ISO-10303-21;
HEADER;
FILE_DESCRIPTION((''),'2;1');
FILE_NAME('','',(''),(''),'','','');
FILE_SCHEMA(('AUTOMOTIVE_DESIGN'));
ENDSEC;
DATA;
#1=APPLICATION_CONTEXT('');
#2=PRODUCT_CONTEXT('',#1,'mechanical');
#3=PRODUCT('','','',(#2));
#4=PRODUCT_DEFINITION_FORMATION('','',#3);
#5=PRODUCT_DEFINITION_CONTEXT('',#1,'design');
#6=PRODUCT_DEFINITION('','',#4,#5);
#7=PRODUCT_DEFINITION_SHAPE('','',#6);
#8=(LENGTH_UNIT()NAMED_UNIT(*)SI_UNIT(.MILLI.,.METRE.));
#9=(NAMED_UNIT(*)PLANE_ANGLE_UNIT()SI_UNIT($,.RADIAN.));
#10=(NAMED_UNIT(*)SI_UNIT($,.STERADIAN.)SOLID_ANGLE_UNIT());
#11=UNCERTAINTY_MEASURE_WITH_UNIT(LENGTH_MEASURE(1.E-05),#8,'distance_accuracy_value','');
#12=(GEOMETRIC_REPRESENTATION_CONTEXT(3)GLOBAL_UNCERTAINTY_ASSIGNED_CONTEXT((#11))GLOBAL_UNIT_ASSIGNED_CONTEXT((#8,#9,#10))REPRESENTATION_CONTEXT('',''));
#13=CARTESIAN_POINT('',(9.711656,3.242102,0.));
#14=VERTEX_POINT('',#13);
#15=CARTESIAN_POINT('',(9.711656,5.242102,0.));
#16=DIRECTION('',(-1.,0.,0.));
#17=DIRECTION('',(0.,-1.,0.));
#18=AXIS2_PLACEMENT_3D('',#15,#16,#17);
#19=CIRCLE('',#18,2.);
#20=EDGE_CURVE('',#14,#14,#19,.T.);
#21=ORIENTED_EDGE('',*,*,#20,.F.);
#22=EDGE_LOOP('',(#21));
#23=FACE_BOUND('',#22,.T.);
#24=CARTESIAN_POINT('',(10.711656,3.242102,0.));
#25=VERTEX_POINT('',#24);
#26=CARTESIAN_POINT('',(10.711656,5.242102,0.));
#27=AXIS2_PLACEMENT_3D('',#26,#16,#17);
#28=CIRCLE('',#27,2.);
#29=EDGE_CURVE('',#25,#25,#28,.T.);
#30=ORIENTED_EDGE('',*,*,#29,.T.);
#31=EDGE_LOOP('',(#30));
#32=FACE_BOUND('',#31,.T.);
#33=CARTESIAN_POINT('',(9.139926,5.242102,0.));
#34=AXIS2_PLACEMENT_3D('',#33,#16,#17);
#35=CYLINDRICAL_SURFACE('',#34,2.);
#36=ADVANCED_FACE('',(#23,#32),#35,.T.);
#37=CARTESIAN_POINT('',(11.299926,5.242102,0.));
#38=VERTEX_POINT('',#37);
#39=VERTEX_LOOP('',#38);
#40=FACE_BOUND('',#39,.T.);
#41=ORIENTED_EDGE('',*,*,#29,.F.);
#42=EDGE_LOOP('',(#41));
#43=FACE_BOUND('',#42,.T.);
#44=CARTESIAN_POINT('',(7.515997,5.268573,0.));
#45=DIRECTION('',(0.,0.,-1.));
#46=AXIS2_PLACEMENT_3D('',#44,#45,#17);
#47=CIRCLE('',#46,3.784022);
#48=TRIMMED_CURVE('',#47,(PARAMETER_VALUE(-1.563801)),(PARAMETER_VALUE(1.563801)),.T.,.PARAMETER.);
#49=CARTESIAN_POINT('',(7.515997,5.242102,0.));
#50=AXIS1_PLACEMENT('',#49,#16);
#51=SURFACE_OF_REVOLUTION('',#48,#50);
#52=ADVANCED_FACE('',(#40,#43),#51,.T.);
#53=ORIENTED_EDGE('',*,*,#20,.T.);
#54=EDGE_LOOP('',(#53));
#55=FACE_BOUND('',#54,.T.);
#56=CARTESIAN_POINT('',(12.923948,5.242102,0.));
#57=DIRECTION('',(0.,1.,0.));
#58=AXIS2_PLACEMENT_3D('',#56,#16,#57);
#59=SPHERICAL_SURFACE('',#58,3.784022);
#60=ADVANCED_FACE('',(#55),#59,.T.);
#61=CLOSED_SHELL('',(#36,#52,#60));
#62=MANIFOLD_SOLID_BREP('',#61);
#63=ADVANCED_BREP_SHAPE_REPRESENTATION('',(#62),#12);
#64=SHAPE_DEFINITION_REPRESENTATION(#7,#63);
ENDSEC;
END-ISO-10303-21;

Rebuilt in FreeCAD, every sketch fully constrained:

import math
import FreeCAD as App
import Part
import Sketcher
from FreeCAD import Vector

doc = App.newDocument("Part")
params = doc.addObject("Spreadsheet::Sheet", "Params")
for row, (alias, value) in enumerate([
    ("sketch1_width", "1 mm"),
    ("sketch1_width2", "2.16 mm"),
    ("revolution_angle", "360 deg"),
], start=1):
    params.set(f"A{row}", alias)
    params.set(f"B{row}", "=" + value)
    params.setAlias(f"B{row}", alias)

body = doc.addObject("PartDesign::Body", "Body")

# Sketch on XY plane
sketch1 = body.newObject("Sketcher::SketchObject", "Sketch")
sketch1.AttachmentSupport = (doc.getObject("XY_Plane"), [""])
sketch1.MapMode = "FlatFace"
sketch1.addGeometry([
    Part.LineSegment(Vector(10.7, 7.2, 0), Vector(9.7, 7.2, 0)),
    Part.ArcOfCircle(Part.Circle(Vector(12.9, 5.2, 0), Vector(0, 0, 1), 3.8), math.radians(148), math.radians(180)),
    Part.LineSegment(Vector(9.1, 5.2, 0), Vector(11.3, 5.2, 0)),
    Part.ArcOfCircle(Part.Circle(Vector(7.5, 5.2, 0), Vector(0, 0, 1), 3.8), math.radians(0), math.radians(32)),
], False)
sketch1.addGeometry(Part.LineSegment(Vector(7.5, 5.2, 0), Vector(12.9, 5.2, 0)), True)  # axis
sketch1.addConstraint([
    Sketcher.Constraint("Coincident", 0, 2, 1, 1),
    Sketcher.Constraint("Coincident", 1, 2, 2, 1),
    Sketcher.Constraint("Coincident", 2, 2, 3, 1),
    Sketcher.Constraint("Coincident", 3, 2, 0, 1),
    Sketcher.Constraint("Horizontal", 0),
    Sketcher.Constraint("Horizontal", 2),
    Sketcher.Constraint("Horizontal", 4),
    Sketcher.Constraint("Coincident", 4, 2, 1, 3),
    Sketcher.Constraint("Equal", 1, 3),
    Sketcher.Constraint("Horizontal", 2, 2, 4, 1),
    Sketcher.Constraint("Vertical", 3, 3, 4, 1),
    Sketcher.Constraint("DistanceX", 0, 2, 0, 1, 1.0),
    Sketcher.Constraint("DistanceY", 1, 3, 0, 2, 2.0),
    Sketcher.Constraint("DistanceX", 2, 1, 2, 2, 2.16),
    Sketcher.Constraint("Radius", 1, 3.784022),
    Sketcher.Constraint("DistanceY", -1, 1, 1, 3, 5.242102),
    Sketcher.Constraint("DistanceX", -1, 1, 1, 3, 12.923948),
])
sketch1.setExpression("Constraints[11]", "Params.sketch1_width")
sketch1.setExpression("Constraints[13]", "Params.sketch1_width2")
revolution = body.newObject("PartDesign::Revolution", "Revolution")
revolution.Profile = sketch1
revolution.ReferenceAxis = (sketch1, ["Axis0"])
revolution.setExpression("Angle", "Params.revolution_angle")

doc.recompute()
